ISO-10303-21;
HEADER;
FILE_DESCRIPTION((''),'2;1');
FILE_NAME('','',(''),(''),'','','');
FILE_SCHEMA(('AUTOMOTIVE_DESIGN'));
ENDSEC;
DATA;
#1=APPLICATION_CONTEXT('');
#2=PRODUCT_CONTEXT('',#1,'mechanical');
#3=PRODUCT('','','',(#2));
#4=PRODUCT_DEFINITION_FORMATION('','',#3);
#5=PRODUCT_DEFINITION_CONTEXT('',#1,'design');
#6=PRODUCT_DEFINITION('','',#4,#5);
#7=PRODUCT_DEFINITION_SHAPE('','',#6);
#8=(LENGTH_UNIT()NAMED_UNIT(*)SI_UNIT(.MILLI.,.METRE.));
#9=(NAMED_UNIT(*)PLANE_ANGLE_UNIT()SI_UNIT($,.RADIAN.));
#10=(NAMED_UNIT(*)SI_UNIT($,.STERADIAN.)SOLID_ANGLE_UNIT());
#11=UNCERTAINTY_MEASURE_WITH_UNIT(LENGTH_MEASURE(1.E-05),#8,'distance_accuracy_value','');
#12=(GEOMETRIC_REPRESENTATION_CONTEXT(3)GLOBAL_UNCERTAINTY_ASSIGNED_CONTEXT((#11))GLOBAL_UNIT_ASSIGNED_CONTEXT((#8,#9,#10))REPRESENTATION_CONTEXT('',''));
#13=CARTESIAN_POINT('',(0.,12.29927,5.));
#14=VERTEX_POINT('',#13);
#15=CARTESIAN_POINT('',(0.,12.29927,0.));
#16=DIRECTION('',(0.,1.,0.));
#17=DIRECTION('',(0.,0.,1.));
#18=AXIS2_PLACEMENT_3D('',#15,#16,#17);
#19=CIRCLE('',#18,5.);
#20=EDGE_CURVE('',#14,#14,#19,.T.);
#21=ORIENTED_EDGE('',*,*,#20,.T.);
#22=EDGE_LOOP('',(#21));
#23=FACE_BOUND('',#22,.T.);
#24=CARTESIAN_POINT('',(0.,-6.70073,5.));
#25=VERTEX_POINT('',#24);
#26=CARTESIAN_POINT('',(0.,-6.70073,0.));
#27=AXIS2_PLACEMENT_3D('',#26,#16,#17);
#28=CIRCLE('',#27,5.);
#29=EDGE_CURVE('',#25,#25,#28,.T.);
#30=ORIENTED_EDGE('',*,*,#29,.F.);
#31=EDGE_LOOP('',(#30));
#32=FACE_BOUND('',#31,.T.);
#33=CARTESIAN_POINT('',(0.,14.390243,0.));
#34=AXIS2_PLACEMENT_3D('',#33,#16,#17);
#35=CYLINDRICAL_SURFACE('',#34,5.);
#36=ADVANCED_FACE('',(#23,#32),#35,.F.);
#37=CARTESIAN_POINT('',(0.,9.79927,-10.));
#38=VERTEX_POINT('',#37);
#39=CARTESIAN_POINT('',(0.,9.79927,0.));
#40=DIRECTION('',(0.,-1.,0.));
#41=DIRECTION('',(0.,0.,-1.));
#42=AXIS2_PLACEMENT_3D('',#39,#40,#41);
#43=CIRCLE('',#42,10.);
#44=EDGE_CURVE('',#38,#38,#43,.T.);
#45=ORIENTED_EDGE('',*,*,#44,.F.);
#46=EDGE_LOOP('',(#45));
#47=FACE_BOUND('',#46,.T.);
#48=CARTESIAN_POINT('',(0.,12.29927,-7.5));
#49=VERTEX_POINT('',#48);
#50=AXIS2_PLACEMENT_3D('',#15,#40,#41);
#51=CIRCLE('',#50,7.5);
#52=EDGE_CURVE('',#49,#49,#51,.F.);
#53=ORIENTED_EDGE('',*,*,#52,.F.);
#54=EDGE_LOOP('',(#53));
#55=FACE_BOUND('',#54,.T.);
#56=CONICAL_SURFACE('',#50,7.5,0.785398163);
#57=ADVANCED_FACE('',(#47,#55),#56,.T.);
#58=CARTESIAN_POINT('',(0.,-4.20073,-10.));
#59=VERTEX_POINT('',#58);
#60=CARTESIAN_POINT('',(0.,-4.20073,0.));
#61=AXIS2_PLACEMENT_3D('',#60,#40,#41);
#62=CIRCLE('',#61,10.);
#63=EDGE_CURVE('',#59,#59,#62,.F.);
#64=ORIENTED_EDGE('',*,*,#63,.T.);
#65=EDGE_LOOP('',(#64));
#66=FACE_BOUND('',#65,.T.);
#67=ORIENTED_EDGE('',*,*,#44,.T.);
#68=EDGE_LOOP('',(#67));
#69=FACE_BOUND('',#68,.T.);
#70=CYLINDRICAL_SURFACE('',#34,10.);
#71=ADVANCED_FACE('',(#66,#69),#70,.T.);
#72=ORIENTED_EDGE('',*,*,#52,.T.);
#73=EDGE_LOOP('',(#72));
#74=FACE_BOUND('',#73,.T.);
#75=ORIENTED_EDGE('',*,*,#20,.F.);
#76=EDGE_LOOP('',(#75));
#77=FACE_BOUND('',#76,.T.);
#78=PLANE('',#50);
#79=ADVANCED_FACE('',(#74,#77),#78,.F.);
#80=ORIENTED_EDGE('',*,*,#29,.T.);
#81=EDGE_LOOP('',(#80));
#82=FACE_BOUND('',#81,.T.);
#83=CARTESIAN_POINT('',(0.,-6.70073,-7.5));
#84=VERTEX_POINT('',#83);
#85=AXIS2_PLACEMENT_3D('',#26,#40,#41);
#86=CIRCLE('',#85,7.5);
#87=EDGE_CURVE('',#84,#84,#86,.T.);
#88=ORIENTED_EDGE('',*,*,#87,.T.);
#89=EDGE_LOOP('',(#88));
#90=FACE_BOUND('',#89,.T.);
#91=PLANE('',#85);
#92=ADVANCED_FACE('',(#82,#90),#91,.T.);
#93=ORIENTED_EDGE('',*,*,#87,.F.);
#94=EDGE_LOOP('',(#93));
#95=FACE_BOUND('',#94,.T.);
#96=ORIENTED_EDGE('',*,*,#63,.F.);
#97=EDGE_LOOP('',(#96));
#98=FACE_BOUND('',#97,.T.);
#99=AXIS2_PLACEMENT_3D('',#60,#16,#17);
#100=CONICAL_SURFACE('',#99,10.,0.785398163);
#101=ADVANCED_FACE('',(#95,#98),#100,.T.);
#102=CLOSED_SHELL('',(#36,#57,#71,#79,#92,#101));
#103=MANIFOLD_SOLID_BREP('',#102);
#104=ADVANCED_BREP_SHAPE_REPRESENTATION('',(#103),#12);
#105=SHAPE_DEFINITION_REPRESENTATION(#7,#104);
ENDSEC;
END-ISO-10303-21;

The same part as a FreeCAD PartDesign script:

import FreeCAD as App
import Part
import Sketcher
from FreeCAD import Vector


def edges_at(feature, points):
    """Names of the edges that pass closest to the given points."""
    edges = feature.Shape.Edges
    near = lambda p: min(range(len(edges)), key=lambda i: edges[i].distToShape(Part.Vertex(*p))[0])
    return sorted({f"Edge{near(p) + 1}" for p in points})


def add_polygon(sketch, points):
    """Adds a closed chain of lines whose ends are joined by coincident constraints."""
    first, n = sketch.GeometryCount, len(points)
    for a, b in zip(points, points[1:] + points[:1]):
        sketch.addGeometry(Part.LineSegment(App.Vector(*a, 0), App.Vector(*b, 0)), False)
    for i in range(n):
        sketch.addConstraint(Sketcher.Constraint("Coincident", first + i, 2, first + (i + 1) % n, 1))

doc = App.newDocument("Part")
body = doc.addObject("PartDesign::Body", "Body")

# Sketch on XY plane
sketch1 = body.newObject("Sketcher::SketchObject", "Sketch")
sketch1.AttachmentSupport = (doc.getObject("XY_Plane"), [""])
sketch1.MapMode = "FlatFace"
add_polygon(sketch1, [(-10, 12), (-10, -7), (-5, -7), (-5, 12)])  # lines 0-3
sketch1.addConstraint([
    Sketcher.Constraint("Vertical", 0),
    Sketcher.Constraint("Horizontal", 1),
    Sketcher.Constraint("Vertical", 2),
    Sketcher.Constraint("Horizontal", 3),
    Sketcher.Constraint("DistanceX", 1, 1, 1, 2, 5.0),
    Sketcher.Constraint("DistanceY", 0, 2, 0, 1, 19.0),
    Sketcher.Constraint("DistanceX", 0, 2, -1, 1, 10.0),
    Sketcher.Constraint("DistanceY", 0, 2, -1, 1, 6.70073),
])
revolution = body.newObject("PartDesign::Revolution", "Revolution")
revolution.Profile = sketch1
revolution.ReferenceAxis = (sketch1, ["V_Axis"])
revolution.Angle = 360
doc.recompute()

chamfer = body.newObject("PartDesign::Chamfer", "Chamfer")
chamfer.Base = (revolution, edges_at(revolution, [(0, 12.299, -10)]))
chamfer.Size = 2.5
doc.recompute()

chamfer2 = body.newObject("PartDesign::Chamfer", "Chamfer001")
chamfer2.Base = (chamfer, edges_at(chamfer, [(0, -6.701, -10)]))
chamfer2.Size = 2.5

doc.recompute()
